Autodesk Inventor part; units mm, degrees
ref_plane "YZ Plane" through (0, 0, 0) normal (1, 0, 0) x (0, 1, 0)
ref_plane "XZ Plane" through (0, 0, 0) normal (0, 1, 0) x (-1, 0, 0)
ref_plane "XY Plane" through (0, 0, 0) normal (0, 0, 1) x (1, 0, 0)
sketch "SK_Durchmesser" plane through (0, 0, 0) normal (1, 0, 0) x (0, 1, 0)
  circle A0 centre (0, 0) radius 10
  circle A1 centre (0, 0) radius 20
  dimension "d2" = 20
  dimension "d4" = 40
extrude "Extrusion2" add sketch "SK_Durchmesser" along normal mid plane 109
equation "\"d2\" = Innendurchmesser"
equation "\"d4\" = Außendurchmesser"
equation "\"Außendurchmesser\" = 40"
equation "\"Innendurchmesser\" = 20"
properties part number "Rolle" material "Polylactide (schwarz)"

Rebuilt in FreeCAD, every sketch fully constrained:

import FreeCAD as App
import Part
import Sketcher

doc = App.newDocument("Part")
body = doc.addObject("PartDesign::Body", "Body")

# Sketch on YZ plane
sketch1 = body.newObject("Sketcher::SketchObject", "Sketch")
sketch1.AttachmentSupport = (doc.getObject("YZ_Plane"), [""])
sketch1.MapMode = "FlatFace"
sketch1.addGeometry([
    Part.Circle(App.Vector(0, 0, 0), App.Vector(0, 0, 1), 20),
    Part.Circle(App.Vector(0, 0, 0), App.Vector(0, 0, 1), 10),
], False)
sketch1.addConstraint([
    Sketcher.Constraint("Coincident", 0, 3, -1, 1),
    Sketcher.Constraint("Coincident", 1, 3, -1, 1),
    Sketcher.Constraint("Diameter", 0, 40.0),
    Sketcher.Constraint("Diameter", 1, 20.0),
])
pad1 = body.newObject("PartDesign::Pad", "Pad")
pad1.Profile = sketch1
pad1.Length = 109
pad1.Midplane = True

doc.recompute()
